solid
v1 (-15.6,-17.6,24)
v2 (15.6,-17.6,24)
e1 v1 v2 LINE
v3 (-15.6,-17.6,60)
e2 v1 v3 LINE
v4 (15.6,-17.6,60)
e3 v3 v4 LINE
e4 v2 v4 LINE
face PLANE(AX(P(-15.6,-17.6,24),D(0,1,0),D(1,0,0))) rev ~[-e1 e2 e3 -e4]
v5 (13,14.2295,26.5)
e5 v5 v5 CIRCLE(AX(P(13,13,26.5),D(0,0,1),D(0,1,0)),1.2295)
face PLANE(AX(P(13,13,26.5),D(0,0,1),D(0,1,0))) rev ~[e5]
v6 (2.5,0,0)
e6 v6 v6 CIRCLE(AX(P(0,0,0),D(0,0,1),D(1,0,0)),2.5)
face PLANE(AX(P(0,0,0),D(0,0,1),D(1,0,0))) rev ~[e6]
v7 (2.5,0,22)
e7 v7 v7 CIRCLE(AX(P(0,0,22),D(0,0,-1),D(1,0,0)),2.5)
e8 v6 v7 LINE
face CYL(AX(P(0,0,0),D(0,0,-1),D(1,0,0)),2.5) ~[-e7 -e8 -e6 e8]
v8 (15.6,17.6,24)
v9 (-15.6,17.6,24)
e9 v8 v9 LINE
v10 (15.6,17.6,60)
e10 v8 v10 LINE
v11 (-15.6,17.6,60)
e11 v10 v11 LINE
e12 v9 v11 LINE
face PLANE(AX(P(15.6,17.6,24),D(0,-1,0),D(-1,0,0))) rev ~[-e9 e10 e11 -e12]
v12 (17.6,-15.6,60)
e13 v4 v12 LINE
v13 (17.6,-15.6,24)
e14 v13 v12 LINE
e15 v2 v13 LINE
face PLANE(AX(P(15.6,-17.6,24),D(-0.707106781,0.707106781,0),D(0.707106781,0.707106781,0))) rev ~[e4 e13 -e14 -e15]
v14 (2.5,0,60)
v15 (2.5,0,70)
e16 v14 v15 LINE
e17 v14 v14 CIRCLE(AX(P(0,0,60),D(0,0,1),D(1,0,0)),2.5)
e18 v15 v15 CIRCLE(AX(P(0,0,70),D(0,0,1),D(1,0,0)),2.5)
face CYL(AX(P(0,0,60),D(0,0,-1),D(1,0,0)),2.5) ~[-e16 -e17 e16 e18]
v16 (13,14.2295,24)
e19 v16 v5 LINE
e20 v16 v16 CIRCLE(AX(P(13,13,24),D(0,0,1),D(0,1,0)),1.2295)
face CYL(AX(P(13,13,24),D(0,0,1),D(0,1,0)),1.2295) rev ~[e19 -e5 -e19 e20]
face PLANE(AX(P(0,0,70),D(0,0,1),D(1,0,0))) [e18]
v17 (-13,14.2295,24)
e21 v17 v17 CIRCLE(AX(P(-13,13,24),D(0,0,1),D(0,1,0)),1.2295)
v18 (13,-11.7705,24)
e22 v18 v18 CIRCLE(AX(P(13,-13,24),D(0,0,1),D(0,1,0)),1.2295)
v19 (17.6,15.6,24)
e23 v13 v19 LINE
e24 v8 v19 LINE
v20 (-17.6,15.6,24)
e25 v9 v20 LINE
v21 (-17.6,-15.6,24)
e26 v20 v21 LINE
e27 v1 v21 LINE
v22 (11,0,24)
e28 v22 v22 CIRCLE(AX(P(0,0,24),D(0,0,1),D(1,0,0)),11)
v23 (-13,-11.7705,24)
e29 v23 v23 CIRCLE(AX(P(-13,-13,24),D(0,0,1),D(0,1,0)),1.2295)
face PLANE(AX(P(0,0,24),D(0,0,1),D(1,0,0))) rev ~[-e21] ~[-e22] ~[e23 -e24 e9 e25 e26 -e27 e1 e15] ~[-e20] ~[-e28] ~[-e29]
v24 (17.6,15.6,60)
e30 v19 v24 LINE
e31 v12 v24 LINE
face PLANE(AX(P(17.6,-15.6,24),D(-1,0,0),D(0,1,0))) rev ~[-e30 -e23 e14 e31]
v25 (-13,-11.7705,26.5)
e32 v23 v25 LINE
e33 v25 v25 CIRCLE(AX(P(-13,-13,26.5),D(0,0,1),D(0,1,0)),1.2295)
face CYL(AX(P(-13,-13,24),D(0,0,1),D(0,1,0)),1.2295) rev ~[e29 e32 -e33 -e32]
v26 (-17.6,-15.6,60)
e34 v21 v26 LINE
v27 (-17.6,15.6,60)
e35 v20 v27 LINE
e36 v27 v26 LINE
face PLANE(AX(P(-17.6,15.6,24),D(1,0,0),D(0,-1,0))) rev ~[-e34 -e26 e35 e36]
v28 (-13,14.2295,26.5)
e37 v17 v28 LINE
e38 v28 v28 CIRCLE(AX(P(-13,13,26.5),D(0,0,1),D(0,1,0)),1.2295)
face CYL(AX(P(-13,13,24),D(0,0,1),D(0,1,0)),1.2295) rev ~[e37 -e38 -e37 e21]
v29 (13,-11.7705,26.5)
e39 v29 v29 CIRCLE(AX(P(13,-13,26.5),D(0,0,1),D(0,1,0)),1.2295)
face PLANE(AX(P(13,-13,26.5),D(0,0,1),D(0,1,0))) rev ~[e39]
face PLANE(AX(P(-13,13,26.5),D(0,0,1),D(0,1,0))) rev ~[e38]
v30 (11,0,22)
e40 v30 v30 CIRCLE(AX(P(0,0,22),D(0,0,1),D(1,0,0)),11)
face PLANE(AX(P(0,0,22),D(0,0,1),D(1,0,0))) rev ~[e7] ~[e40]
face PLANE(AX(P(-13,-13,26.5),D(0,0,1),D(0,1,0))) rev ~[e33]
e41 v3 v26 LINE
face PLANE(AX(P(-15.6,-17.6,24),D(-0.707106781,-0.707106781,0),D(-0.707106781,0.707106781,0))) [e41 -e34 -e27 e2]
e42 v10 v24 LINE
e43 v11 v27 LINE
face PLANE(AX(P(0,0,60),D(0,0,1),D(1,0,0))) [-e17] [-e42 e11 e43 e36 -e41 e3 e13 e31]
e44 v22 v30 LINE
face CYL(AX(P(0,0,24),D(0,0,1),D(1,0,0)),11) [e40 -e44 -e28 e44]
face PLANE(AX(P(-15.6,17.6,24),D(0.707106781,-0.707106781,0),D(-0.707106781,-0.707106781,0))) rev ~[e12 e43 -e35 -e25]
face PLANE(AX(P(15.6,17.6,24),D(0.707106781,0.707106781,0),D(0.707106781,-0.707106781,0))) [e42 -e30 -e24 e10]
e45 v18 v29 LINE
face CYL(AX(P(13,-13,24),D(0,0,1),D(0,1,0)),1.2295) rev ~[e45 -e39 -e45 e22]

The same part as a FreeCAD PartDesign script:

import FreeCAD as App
import Part
import Sketcher
Q = App.Units.Quantity

doc = App.newDocument("Part")
params = doc.addObject("Spreadsheet::Sheet", "Params")
for row, (alias, value) in enumerate([
    ("sketch1_diameter", "5 mm"),
    ("pad1_length", "24 mm"),
    ("sketch2_diameter", "22 mm"),
    ("pad2_length", "2 mm"),
    ("sketch3_width", "31.2 mm"),
    ("pad3_length", "36 mm"),
    ("hole_diameter", "2.459 mm"),
    ("hole_depth", "2.5 mm"),
    ("hole2_diameter", "2.459 mm"),
    ("hole2_depth", "2.5 mm"),
    ("hole3_diameter", "2.459 mm"),
    ("hole3_depth", "2.5 mm"),
    ("hole4_diameter", "2.459 mm"),
    ("hole4_depth", "2.5 mm"),
    ("sketch8_diameter", "5 mm"),
    ("pad4_length", "10 mm"),
], start=1):
    params.set(f"A{row}", alias)
    params.set(f"B{row}", "=" + value)
    params.setAlias(f"B{row}", alias)

body = doc.addObject("PartDesign::Body", "Body")

# Sketch on XY plane
sketch1 = body.newObject("Sketcher::SketchObject", "Sketch")
sketch1.AttachmentSupport = (doc.getObject("XY_Plane"), [""])
sketch1.MapMode = "FlatFace"
sketch1.addGeometry(Part.Circle(App.Vector(0, 0, 0), App.Vector(0, 0, 1), 2.5), False)
sketch1.addConstraint(Sketcher.Constraint("Coincident", 0, 3, -1, 1))
sketch1.addConstraint(Sketcher.Constraint("Diameter", 0, Q("5 mm")))
sketch1.setExpression("Constraints[1]", "Params.sketch1_diameter")
pad1 = body.newObject("PartDesign::Pad", "Pad")
pad1.Profile = sketch1
pad1.setExpression("Length", "Params.pad1_length")

# Sketch on XY plane
sketch2 = body.newObject("Sketcher::SketchObject", "Sketch001")
sketch2.AttachmentSupport = (doc.getObject("XY_Plane"), [""])
sketch2.MapMode = "FlatFace"
sketch2.AttachmentOffset = App.Placement(App.Vector(0, 0, 24), App.Rotation())
sketch2.addGeometry(Part.Circle(App.Vector(0, 0, 0), App.Vector(0, 0, 1), 11), False)
sketch2.addConstraint(Sketcher.Constraint("Coincident", 0, 3, -1, 1))
sketch2.addConstraint(Sketcher.Constraint("Diameter", 0, Q("22 mm")))
sketch2.setExpression("Constraints[1]", "Params.sketch2_diameter")
pad2 = body.newObject("PartDesign::Pad", "Pad001")
pad2.Profile = sketch2
pad2.setExpression("Length", "Params.pad2_length")
pad2.Reversed = True

# Sketch on XY plane
sketch3 = body.newObject("Sketcher::SketchObject", "Sketch002")
sketch3.AttachmentSupport = (doc.getObject("XY_Plane"), [""])
sketch3.MapMode = "FlatFace"
sketch3.AttachmentOffset = App.Placement(App.Vector(0, 0, 24), App.Rotation())
sketch3.addGeometry(Part.LineSegment(App.Vector(-17.6, -15.6, 0), App.Vector(-15.6, -17.6, 0)), False)
sketch3.addGeometry(Part.LineSegment(App.Vector(-15.6, -17.6, 0), App.Vector(15.6, -17.6, 0)), False)
sketch3.addGeometry(Part.LineSegment(App.Vector(15.6, -17.6, 0), App.Vector(17.6, -15.6, 0)), False)
sketch3.addGeometry(Part.LineSegment(App.Vector(17.6, -15.6, 0), App.Vector(17.6, 15.6, 0)), False)
sketch3.addGeometry(Part.LineSegment(App.Vector(17.6, 15.6, 0), App.Vector(15.6, 17.6, 0)), False)
sketch3.addGeometry(Part.LineSegment(App.Vector(15.6, 17.6, 0), App.Vector(-15.6, 17.6, 0)), False)
sketch3.addGeometry(Part.LineSegment(App.Vector(-15.6, 17.6, 0), App.Vector(-17.6, 15.6, 0)), False)
sketch3.addGeometry(Part.LineSegment(App.Vector(-17.6, 15.6, 0), App.Vector(-17.6, -15.6, 0)), False)
sketch3.addConstraint(Sketcher.Constraint("Coincident", 0, 2, 1, 1))
sketch3.addConstraint(Sketcher.Constraint("Coincident", 1, 2, 2, 1))
sketch3.addConstraint(Sketcher.Constraint("Coincident", 2, 2, 3, 1))
sketch3.addConstraint(Sketcher.Constraint("Coincident", 3, 2, 4, 1))
sketch3.addConstraint(Sketcher.Constraint("Coincident", 4, 2, 5, 1))
sketch3.addConstraint(Sketcher.Constraint("Coincident", 5, 2, 6, 1))
sketch3.addConstraint(Sketcher.Constraint("Coincident", 6, 2, 7, 1))
sketch3.addConstraint(Sketcher.Constraint("Coincident", 7, 2, 0, 1))
sketch3.addConstraint(Sketcher.Constraint("Horizontal", 1))
sketch3.addConstraint(Sketcher.Constraint("Vertical", 3))
sketch3.addConstraint(Sketcher.Constraint("Horizontal", 5))
sketch3.addConstraint(Sketcher.Constraint("Vertical", 7))
sketch3.addConstraint(Sketcher.Constraint("Symmetric", 0, 2, 4, 2, -1, 1))
sketch3.addConstraint(Sketcher.Constraint("Symmetric", 2, 2, 6, 2, -1, 1))
sketch3.addConstraint(Sketcher.Constraint("Perpendicular", 0, 2))
sketch3.addConstraint(Sketcher.Constraint("Perpendicular", 2, 4))
sketch3.addConstraint(Sketcher.Constraint("Perpendicular", 4, 6))
sketch3.addConstraint(Sketcher.Constraint("Horizontal", 3, 2, 6, 2))
sketch3.addConstraint(Sketcher.Constraint("Vertical", 1, 2, 4, 2))
sketch3.addConstraint(Sketcher.Constraint("Equal", 5, 3))
sketch3.addConstraint(Sketcher.Constraint("DistanceX", 1, 1, 1, 2, Q("31.2 mm")))
sketch3.addConstraint(Sketcher.Constraint("DistanceX", 1, 2, 2, 2, Q("2 mm")))
sketch3.setExpression("Constraints[20]", "Params.sketch3_width")
pad3 = body.newObject("PartDesign::Pad", "Pad002")
pad3.Profile = sketch3
pad3.setExpression("Length", "Params.pad3_length")

# Sketch on XY plane
sketch4 = body.newObject("Sketcher::SketchObject", "Sketch003")
sketch4.AttachmentSupport = (doc.getObject("XY_Plane"), [""])
sketch4.MapMode = "FlatFace"
sketch4.AttachmentOffset = App.Placement(App.Vector(0, 0, 24), App.Rotation())
sketch4.addGeometry(Part.Circle(App.Vector(-13, -13, 0), App.Vector(0, 0, 1), 1.2), False)
sketch4.addConstraint(Sketcher.Constraint("Diameter", 0, Q("2.459 mm")))
sketch4.addConstraint(Sketcher.Constraint("DistanceX", 0, 3, -1, 1, Q("13 mm")))
sketch4.addConstraint(Sketcher.Constraint("DistanceY", 0, 3, -1, 1, Q("13 mm")))
doc.recompute()
hole = body.newObject("PartDesign::Hole", "Hole")
hole.Profile = sketch4
hole.ThreadType = "None"
hole.setExpression("Diameter", "Params.hole_diameter")
hole.DepthType = "Dimension"
hole.setExpression("Depth", "Params.hole_depth")
hole.DrillPoint = "Flat"
hole.Reversed = True

# Sketch on XY plane
sketch5 = body.newObject("Sketcher::SketchObject", "Sketch004")
sketch5.AttachmentSupport = (doc.getObject("XY_Plane"), [""])
sketch5.MapMode = "FlatFace"
sketch5.AttachmentOffset = App.Placement(App.Vector(0, 0, 24), App.Rotation())
sketch5.addGeometry(Part.Circle(App.Vector(-13, 13, 0), App.Vector(0, 0, 1), 1.2), False)
sketch5.addConstraint(Sketcher.Constraint("Diameter", 0, Q("2.459 mm")))
sketch5.addConstraint(Sketcher.Constraint("DistanceX", 0, 3, -1, 1, Q("13 mm")))
sketch5.addConstraint(Sketcher.Constraint("DistanceY", -1, 1, 0, 3, Q("13 mm")))
doc.recompute()
hole2 = body.newObject("PartDesign::Hole", "Hole001")
hole2.Profile = sketch5
hole2.ThreadType = "None"
hole2.setExpression("Diameter", "Params.hole2_diameter")
hole2.DepthType = "Dimension"
hole2.setExpression("Depth", "Params.hole2_depth")
hole2.DrillPoint = "Flat"
hole2.Reversed = True

# Sketch on XY plane
sketch6 = body.newObject("Sketcher::SketchObject", "Sketch005")
sketch6.AttachmentSupport = (doc.getObject("XY_Plane"), [""])
sketch6.MapMode = "FlatFace"
sketch6.AttachmentOffset = App.Placement(App.Vector(0, 0, 24), App.Rotation())
sketch6.addGeometry(Part.Circle(App.Vector(13, 13, 0), App.Vector(0, 0, 1), 1.2), False)
sketch6.addConstraint(Sketcher.Constraint("Diameter", 0, Q("2.459 mm")))
sketch6.addConstraint(Sketcher.Constraint("DistanceX", -1, 1, 0, 3, Q("13 mm")))
sketch6.addConstraint(Sketcher.Constraint("DistanceY", -1, 1, 0, 3, Q("13 mm")))
doc.recompute()
hole3 = body.newObject("PartDesign::Hole", "Hole002")
hole3.Profile = sketch6
hole3.ThreadType = "None"
hole3.setExpression("Diameter", "Params.hole3_diameter")
hole3.DepthType = "Dimension"
hole3.setExpression("Depth", "Params.hole3_depth")
hole3.DrillPoint = "Flat"
hole3.Reversed = True

# Sketch on XY plane
sketch7 = body.newObject("Sketcher::SketchObject", "Sketch006")
sketch7.AttachmentSupport = (doc.getObject("XY_Plane"), [""])
sketch7.MapMode = "FlatFace"
sketch7.AttachmentOffset = App.Placement(App.Vector(0, 0, 24), App.Rotation())
sketch7.addGeometry(Part.Circle(App.Vector(13, -13, 0), App.Vector(0, 0, 1), 1.2), False)
sketch7.addConstraint(Sketcher.Constraint("Diameter", 0, Q("2.459 mm")))
sketch7.addConstraint(Sketcher.Constraint("DistanceX", -1, 1, 0, 3, Q("13 mm")))
sketch7.addConstraint(Sketcher.Constraint("DistanceY", 0, 3, -1, 1, Q("13 mm")))
doc.recompute()
hole4 = body.newObject("PartDesign::Hole", "Hole003")
hole4.Profile = sketch7
hole4.ThreadType = "None"
hole4.setExpression("Diameter", "Params.hole4_diameter")
hole4.DepthType = "Dimension"
hole4.setExpression("Depth", "Params.hole4_depth")
hole4.DrillPoint = "Flat"
hole4.Reversed = True

# Sketch on XY plane
sketch8 = body.newObject("Sketcher::SketchObject", "Sketch007")
sketch8.AttachmentSupport = (doc.getObject("XY_Plane"), [""])
sketch8.MapMode = "FlatFace"
sketch8.AttachmentOffset = App.Placement(App.Vector(0, 0, 60), App.Rotation())
sketch8.addGeometry(Part.Circle(App.Vector(0, 0, 0), App.Vector(0, 0, 1), 2.5), False)
sketch8.addConstraint(Sketcher.Constraint("Coincident", 0, 3, -1, 1))
sketch8.addConstraint(Sketcher.Constraint("Diameter", 0, Q("5 mm")))
sketch8.setExpression("Constraints[1]", "Params.sketch8_diameter")
pad4 = body.newObject("PartDesign::Pad", "Pad003")
pad4.Profile = sketch8
pad4.setExpression("Length", "Params.pad4_length")

doc.recompute()
